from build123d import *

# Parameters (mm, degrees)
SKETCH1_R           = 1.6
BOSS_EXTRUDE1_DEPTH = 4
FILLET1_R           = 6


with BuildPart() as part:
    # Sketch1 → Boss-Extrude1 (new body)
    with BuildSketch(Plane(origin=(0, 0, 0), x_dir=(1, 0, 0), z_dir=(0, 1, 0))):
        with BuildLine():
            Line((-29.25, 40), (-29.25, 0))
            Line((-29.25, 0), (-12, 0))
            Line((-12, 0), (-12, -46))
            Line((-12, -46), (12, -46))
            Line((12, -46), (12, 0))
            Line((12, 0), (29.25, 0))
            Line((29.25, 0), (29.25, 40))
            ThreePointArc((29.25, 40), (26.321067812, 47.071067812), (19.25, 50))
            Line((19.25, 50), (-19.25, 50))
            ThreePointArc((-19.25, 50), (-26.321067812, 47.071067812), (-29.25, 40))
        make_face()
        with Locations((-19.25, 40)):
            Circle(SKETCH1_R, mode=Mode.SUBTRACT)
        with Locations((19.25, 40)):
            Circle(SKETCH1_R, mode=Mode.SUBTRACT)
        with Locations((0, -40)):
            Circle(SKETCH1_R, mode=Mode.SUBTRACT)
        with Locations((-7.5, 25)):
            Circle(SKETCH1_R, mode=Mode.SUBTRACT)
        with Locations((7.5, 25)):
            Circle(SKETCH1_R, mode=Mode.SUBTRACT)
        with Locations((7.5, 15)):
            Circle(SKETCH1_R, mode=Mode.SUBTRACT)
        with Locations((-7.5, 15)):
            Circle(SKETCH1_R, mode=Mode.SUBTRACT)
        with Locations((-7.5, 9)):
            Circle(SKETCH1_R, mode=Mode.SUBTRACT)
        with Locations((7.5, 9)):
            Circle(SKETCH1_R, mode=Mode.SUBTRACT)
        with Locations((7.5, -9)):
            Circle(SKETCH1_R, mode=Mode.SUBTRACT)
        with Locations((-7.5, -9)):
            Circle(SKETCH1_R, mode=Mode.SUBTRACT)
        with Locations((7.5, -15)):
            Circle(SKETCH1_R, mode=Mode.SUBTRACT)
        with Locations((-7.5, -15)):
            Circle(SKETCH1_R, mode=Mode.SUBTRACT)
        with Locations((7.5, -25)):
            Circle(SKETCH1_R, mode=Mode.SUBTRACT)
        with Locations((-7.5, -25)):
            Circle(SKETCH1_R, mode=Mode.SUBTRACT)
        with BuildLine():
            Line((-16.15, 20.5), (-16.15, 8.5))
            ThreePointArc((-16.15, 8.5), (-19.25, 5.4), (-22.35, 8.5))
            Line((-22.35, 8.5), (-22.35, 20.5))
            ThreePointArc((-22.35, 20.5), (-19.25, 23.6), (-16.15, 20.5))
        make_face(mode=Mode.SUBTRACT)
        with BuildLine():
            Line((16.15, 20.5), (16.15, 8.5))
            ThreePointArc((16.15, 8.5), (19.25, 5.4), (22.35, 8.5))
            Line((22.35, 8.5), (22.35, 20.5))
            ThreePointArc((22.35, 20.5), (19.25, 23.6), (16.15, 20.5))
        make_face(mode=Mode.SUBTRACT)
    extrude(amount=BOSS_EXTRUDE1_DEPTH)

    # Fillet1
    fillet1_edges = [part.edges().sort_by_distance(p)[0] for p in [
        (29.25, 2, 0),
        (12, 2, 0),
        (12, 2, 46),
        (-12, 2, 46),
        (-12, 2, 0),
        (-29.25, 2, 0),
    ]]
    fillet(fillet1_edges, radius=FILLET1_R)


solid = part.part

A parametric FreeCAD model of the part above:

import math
import FreeCAD as App
import Part
import Sketcher

V = App.Vector
Q = App.Units.Quantity


def edges_at(feature, points):
    """Names of the edges that pass closest to the given points."""
    edges = feature.Shape.Edges
    near = lambda p: min(range(len(edges)), key=lambda i: edges[i].distToShape(Part.Vertex(*p))[0])
    return sorted({f"Edge{near(p) + 1}" for p in points})

doc = App.newDocument("Part")
params = doc.addObject("Spreadsheet::Sheet", "Params")
for row, (alias, value) in enumerate([
    ("sketch1_radius", "10 mm"),
    ("sketch1_diameter", "3.2 mm"),
    ("sketch1_radius2", "3.1 mm"),
    ("sketch1_width", "24 mm"),
    ("sketch1_height", "40 mm"),
    ("pad1_length", "4 mm"),
    ("fillet_radius", "6 mm"),
], start=1):
    params.set(f"A{row}", alias)
    params.set(f"B{row}", "=" + value)
    params.setAlias(f"B{row}", alias)

body = doc.addObject("PartDesign::Body", "Body")

sketch1 = body.newObject("Sketcher::SketchObject", "Sketch")
sketch1.AttachmentSupport = (doc.getObject("XZ_Plane"), [""])
sketch1.MapMode = "FlatFace"
sketch1.addGeometry([
    Part.LineSegment(V(-29.25, -40, 0), V(-29.25, 0, 0)),
    Part.LineSegment(V(-29.25, 0, 0), V(-12, 0, 0)),
    Part.LineSegment(V(-12, 0, 0), V(-12, 46, 0)),
    Part.LineSegment(V(-12, 46, 0), V(12, 46, 0)),
    Part.LineSegment(V(12, 46, 0), V(12, 0, 0)),
    Part.LineSegment(V(12, 0, 0), V(29.25, 0, 0)),
    Part.LineSegment(V(29.25, 0, 0), V(29.25, -40, 0)),
    Part.ArcOfCircle(Part.Circle(V(19.25, -40, 0), V(0, 0, 1), 10), math.radians(-90), math.radians(0)),
    Part.LineSegment(V(19.25, -50, 0), V(-19.25, -50, 0)),
    Part.ArcOfCircle(Part.Circle(V(-19.25, -40, 0), V(0, 0, 1), 10), math.radians(180), math.radians(270)),
    Part.Circle(V(-7.5, 25, 0), V(0, 0, 1), 1.6),
    Part.Circle(V(-7.5, 15, 0), V(0, 0, 1), 1.6),
    Part.Circle(V(-7.5, 9, 0), V(0, 0, 1), 1.6),
    Part.Circle(V(0, 40, 0), V(0, 0, 1), 1.6),
    Part.Circle(V(7.5, 25, 0), V(0, 0, 1), 1.6),
    Part.Circle(V(7.5, 15, 0), V(0, 0, 1), 1.6),
    Part.Circle(V(7.5, 9, 0), V(0, 0, 1), 1.6),
    Part.ArcOfCircle(Part.Circle(V(-19.25, -20.5, 0), V(0, 0, 1), 3.1), math.radians(180), math.radians(360)),
    Part.LineSegment(V(-16.15, -20.5, 0), V(-16.15, -8.5, 0)),
    Part.ArcOfCircle(Part.Circle(V(-19.25, -8.5, 0), V(0, 0, 1), 3.1), math.radians(0), math.radians(180)),
    Part.LineSegment(V(-22.35, -8.5, 0), V(-22.35, -20.5, 0)),
    Part.Circle(V(-7.5, -9, 0), V(0, 0, 1), 1.6),
    Part.Circle(V(-7.5, -15, 0), V(0, 0, 1), 1.6),
    Part.Circle(V(-19.25, -40, 0), V(0, 0, 1), 1.6),
    Part.Circle(V(-7.5, -25, 0), V(0, 0, 1), 1.6),
    Part.Circle(V(7.5, -9, 0), V(0, 0, 1), 1.6),
    Part.Circle(V(7.5, -15, 0), V(0, 0, 1), 1.6),
    Part.LineSegment(V(16.15, -8.5, 0), V(16.15, -20.5, 0)),
    Part.ArcOfCircle(Part.Circle(V(19.25, -20.5, 0), V(0, 0, 1), 3.1), math.radians(180), math.radians(360)),
    Part.LineSegment(V(22.35, -20.5, 0), V(22.35, -8.5, 0)),
    Part.ArcOfCircle(Part.Circle(V(19.25, -8.5, 0), V(0, 0, 1), 3.1), math.radians(0), math.radians(180)),
    Part.Circle(V(7.5, -25, 0), V(0, 0, 1), 1.6),
    Part.Circle(V(19.25, -40, 0), V(0, 0, 1), 1.6),
], False)
sketch1.addConstraint([
    Sketcher.Constraint("Coincident", 0, 2, 1, 1),
    Sketcher.Constraint("Coincident", 1, 2, 2, 1),
    Sketcher.Constraint("Coincident", 2, 2, 3, 1),
    Sketcher.Constraint("Coincident", 3, 2, 4, 1),
    Sketcher.Constraint("Coincident", 4, 2, 5, 1),
    Sketcher.Constraint("Coincident", 5, 2, 6, 1),
    Sketcher.Constraint("Tangent", 6, 2, 7, 2),
    Sketcher.Constraint("Tangent", 7, 1, 8, 1),
    Sketcher.Constraint("Tangent", 8, 2, 9, 2),
    Sketcher.Constraint("Tangent", 9, 1, 0, 1),
    Sketcher.Constraint("Tangent", 17, 2, 18, 1),
    Sketcher.Constraint("Tangent", 18, 2, 19, 1),
    Sketcher.Constraint("Tangent", 19, 2, 20, 1),
    Sketcher.Constraint("Tangent", 20, 2, 17, 1),
    Sketcher.Constraint("Tangent", 27, 2, 28, 1),
    Sketcher.Constraint("Tangent", 28, 2, 29, 1),
    Sketcher.Constraint("Tangent", 29, 2, 30, 1),
    Sketcher.Constraint("Tangent", 30, 2, 27, 1),
    Sketcher.Constraint("Vertical", 0),
    Sketcher.Constraint("Horizontal", 1),
    Sketcher.Constraint("Vertical", 2),
    Sketcher.Constraint("Horizontal", 3),
    Sketcher.Constraint("Vertical", 4),
    Sketcher.Constraint("Horizontal", 5),
    Sketcher.Constraint("Vertical", 6),
    Sketcher.Constraint("Horizontal", 8),
    Sketcher.Constraint("Vertical", 18),
    Sketcher.Constraint("Vertical", 20),
    Sketcher.Constraint("Vertical", 27),
    Sketcher.Constraint("Vertical", 29),
    Sketcher.Constraint("Coincident", 23, 3, 9, 3),
    Sketcher.Constraint("Coincident", 32, 3, 7, 3),
    Sketcher.Constraint("Equal", 7, 9),
    Sketcher.Constraint("Equal", 10, 11),
    Sketcher.Constraint("Equal", 11, 12),
    Sketcher.Constraint("Equal", 12, 13),
    Sketcher.Constraint("Equal", 13, 14),
    Sketcher.Constraint("Equal", 14, 15),
    Sketcher.Constraint("Equal", 15, 16),
    Sketcher.Constraint("Equal", 16, 21),
    Sketcher.Constraint("Equal", 21, 22),
    Sketcher.Constraint("Equal", 22, 23),
    Sketcher.Constraint("Equal", 23, 24),
    Sketcher.Constraint("Equal", 24, 25),
    Sketcher.Constraint("Equal", 25, 26),
    Sketcher.Constraint("Equal", 19, 28),
    Sketcher.Constraint("Equal", 26, 31),
    Sketcher.Constraint("Equal", 31, 32),
    Sketcher.Constraint("Symmetric", 16, 3, 21, 3, -1, 1),
    Sketcher.Constraint("Symmetric", 15, 3, 22, 3, -1, 1),
    Sketcher.Constraint("Symmetric", 14, 3, 24, 3, -1, 1),
    Sketcher.Constraint("Symmetric", 12, 3, 25, 3, -1, 1),
    Sketcher.Constraint("Symmetric", 11, 3, 26, 3, -1, 1),
    Sketcher.Constraint("Symmetric", 10, 3, 31, 3, -1, 1),
    Sketcher.Constraint("Symmetric", 1, 2, 4, 2, -1, 1),
    Sketcher.Constraint("Symmetric", 10, 3, 14, 3, -2),
    Sketcher.Constraint("Symmetric", 11, 3, 15, 3, -2),
    Sketcher.Constraint("Symmetric", 12, 3, 16, 3, -2),
    Sketcher.Constraint("Symmetric", 17, 3, 28, 3, -2),
    Sketcher.Constraint("Symmetric", 0, 2, 5, 2, -2),
    Sketcher.Constraint("PointOnObject", 13, 3, -2),
    Sketcher.Constraint("Horizontal", 19, 3, 30, 3),
    Sketcher.Constraint("Vertical", 10, 3, 11, 3),
    Sketcher.Constraint("Vertical", 11, 3, 12, 3),
    Sketcher.Constraint("Vertical", 9, 3, 17, 3),
    Sketcher.Constraint("Radius", 7, Q("10 mm")),
    Sketcher.Constraint("Diameter", 10, Q("3.2 mm")),
    Sketcher.Constraint("Radius", 17, Q("3.1 mm")),
    Sketcher.Constraint("DistanceX", 3, 1, 3, 2, Q("24 mm")),
    Sketcher.Constraint("DistanceY", 0, 1, 0, 2, Q("40 mm")),
    Sketcher.Constraint("DistanceY", 2, 1, 2, 2, Q("46 mm")),
    Sketcher.Constraint("DistanceY", 18, 1, 18, 2, Q("12 mm")),
    Sketcher.Constraint("DistanceX", 8, 2, 8, 1, Q("38.5 mm")),
    Sketcher.Constraint("DistanceY", -1, 1, 10, 3, Q("25 mm")),
    Sketcher.Constraint("DistanceY", -1, 1, 11, 3, Q("15 mm")),
    Sketcher.Constraint("DistanceY", -1, 1, 12, 3, Q("9 mm")),
    Sketcher.Constraint("DistanceY", -1, 1, 13, 3, Q("40 mm")),
    Sketcher.Constraint("DistanceX", 10, 3, 14, 3, Q("15 mm")),
    Sketcher.Constraint("DistanceY", 17, 3, -1, 1, Q("20.5 mm")),
])
sketch1.setExpression("Constraints[65]", "Params.sketch1_radius")
sketch1.setExpression("Constraints[66]", "Params.sketch1_diameter")
sketch1.setExpression("Constraints[67]", "Params.sketch1_radius2")
sketch1.setExpression("Constraints[68]", "Params.sketch1_width")
sketch1.setExpression("Constraints[69]", "Params.sketch1_height")
pad1 = body.newObject("PartDesign::Pad", "Pad")
pad1.Profile = sketch1
pad1.setExpression("Length", "Params.pad1_length")
pad1.Reversed = True
doc.recompute()

fillet = body.newObject("PartDesign::Fillet", "Fillet")
fillet.Base = (pad1, edges_at(pad1, [
    (29.25, 2, 0),
    (12, 2, 0),
    (12, 2, 46),
    (-12, 2, 46),
    (-12, 2, 0),
    (-29.25, 2, 0),
]))
fillet.setExpression("Radius", "Params.fillet_radius")

doc.recompute()
